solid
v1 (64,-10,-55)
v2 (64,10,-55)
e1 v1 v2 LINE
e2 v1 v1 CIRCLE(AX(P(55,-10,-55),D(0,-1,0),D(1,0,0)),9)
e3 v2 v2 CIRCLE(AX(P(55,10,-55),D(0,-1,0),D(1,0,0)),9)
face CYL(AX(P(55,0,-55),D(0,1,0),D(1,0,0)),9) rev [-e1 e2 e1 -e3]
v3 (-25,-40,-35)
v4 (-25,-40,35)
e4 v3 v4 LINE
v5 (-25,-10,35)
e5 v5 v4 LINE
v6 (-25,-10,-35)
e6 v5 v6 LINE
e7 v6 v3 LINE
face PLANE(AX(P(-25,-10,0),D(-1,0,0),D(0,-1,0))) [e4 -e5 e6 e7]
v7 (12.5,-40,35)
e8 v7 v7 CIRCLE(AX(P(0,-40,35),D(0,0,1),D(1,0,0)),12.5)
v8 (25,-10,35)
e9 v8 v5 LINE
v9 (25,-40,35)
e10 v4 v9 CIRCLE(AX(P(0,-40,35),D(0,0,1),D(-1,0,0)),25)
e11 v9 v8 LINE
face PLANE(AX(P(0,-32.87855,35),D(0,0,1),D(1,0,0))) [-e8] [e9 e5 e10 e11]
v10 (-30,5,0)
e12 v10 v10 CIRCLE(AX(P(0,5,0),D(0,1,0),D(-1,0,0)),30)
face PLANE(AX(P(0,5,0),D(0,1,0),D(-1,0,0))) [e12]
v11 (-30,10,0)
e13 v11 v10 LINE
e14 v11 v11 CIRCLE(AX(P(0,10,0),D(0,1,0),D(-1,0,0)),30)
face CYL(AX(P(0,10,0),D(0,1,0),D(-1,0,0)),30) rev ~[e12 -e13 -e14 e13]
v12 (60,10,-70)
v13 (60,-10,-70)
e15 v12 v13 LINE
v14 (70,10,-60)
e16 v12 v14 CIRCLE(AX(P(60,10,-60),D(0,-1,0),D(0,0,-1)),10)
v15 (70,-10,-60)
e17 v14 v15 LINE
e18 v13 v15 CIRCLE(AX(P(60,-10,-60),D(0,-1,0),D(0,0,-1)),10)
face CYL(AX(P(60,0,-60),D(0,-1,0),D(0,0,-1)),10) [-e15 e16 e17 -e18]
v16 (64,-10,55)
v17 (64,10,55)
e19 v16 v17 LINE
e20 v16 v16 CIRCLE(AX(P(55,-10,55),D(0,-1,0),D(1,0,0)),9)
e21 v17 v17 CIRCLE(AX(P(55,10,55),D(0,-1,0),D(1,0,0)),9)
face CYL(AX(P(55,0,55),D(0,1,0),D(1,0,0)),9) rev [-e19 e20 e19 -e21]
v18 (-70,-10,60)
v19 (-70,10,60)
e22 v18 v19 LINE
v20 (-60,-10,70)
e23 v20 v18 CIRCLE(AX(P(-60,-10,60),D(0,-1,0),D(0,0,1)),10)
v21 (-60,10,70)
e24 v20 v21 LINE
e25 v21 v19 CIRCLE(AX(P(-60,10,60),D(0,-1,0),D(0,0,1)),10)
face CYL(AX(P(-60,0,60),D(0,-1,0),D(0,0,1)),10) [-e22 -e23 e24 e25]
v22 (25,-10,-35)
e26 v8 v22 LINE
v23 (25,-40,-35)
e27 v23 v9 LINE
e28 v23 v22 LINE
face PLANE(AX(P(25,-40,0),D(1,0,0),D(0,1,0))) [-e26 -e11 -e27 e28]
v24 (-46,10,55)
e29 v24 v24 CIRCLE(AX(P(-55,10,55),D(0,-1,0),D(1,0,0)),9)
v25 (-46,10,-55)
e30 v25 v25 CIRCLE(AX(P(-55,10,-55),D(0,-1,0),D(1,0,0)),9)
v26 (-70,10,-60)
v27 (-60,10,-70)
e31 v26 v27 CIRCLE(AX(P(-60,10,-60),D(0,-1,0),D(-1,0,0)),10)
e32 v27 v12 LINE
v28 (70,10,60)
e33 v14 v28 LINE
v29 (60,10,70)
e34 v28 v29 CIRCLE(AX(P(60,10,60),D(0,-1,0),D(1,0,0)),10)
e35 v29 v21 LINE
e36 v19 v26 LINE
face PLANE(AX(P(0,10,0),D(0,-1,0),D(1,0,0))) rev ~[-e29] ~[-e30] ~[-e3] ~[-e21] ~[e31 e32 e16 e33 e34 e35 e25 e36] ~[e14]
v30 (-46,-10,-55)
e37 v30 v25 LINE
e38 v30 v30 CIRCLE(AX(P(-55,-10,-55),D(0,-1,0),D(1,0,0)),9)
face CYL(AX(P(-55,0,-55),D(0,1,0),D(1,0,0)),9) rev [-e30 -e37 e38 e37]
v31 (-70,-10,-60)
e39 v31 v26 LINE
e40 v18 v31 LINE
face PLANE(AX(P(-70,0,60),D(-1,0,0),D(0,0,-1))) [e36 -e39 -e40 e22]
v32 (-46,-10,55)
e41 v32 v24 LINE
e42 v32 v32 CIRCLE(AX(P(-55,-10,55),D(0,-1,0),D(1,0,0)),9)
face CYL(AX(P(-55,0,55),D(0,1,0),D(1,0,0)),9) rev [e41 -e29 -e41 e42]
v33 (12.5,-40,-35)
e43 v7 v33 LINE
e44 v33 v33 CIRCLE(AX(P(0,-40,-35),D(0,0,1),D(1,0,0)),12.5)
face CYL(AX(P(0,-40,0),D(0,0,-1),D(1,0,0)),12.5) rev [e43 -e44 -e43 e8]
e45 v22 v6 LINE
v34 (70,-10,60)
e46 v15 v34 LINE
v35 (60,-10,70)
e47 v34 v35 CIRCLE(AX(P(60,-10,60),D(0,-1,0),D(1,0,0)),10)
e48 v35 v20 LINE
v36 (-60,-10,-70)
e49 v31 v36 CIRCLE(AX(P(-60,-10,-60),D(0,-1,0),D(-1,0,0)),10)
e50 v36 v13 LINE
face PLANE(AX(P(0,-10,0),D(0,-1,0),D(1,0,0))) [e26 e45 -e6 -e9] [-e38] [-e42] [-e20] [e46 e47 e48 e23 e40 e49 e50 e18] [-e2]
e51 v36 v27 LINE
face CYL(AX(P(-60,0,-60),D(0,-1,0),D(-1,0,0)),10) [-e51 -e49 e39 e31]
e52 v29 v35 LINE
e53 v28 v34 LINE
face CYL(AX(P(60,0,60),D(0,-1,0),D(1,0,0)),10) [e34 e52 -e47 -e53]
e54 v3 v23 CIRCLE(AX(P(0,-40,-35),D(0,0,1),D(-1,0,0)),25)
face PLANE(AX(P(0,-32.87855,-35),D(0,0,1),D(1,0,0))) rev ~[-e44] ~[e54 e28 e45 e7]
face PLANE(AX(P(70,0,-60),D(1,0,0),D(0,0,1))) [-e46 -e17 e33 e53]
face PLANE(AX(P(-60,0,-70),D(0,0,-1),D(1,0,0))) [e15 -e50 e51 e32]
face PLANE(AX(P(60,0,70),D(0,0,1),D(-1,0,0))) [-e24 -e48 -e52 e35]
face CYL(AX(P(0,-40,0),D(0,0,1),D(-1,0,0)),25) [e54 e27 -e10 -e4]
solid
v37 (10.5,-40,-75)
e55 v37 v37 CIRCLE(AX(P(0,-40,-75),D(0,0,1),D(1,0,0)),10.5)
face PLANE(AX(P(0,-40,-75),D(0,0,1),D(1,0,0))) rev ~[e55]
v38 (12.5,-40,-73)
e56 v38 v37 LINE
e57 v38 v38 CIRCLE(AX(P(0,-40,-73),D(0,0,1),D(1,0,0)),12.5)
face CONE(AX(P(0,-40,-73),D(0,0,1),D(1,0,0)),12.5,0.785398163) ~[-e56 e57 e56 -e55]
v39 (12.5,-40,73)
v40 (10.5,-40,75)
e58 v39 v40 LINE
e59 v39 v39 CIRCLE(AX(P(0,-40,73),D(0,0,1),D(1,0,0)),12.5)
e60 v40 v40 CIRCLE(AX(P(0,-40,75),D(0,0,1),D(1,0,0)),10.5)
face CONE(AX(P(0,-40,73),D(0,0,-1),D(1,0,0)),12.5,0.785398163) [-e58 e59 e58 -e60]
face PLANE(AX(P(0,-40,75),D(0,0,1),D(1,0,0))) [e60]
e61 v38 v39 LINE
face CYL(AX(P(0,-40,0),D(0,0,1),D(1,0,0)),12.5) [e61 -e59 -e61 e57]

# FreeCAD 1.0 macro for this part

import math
import FreeCAD as App
import Part
import Sketcher
from FreeCAD import Vector


def edges_at(feature, points):
    """Names of the edges that pass closest to the given points."""
    edges = feature.Shape.Edges
    near = lambda p: min(range(len(edges)), key=lambda i: edges[i].distToShape(Part.Vertex(*p))[0])
    return sorted({f"Edge{near(p) + 1}" for p in points})

doc = App.newDocument("Part")
body = doc.addObject("PartDesign::Body", "Body")

sketch1 = body.newObject("Sketcher::SketchObject", "Sketch")
sketch1.AttachmentSupport = (doc.getObject("XZ_Plane"), [""])
sketch1.MapMode = "FlatFace"
sketch1.addGeometry([
    Part.LineSegment(Vector(-60, -70, 0), Vector(60, -70, 0)),
    Part.ArcOfCircle(Part.Circle(Vector(60, -60, 0), Vector(0, 0, 1), 10), math.radians(-90), math.radians(0)),
    Part.LineSegment(Vector(70, -60, 0), Vector(70, 60, 0)),
    Part.ArcOfCircle(Part.Circle(Vector(60, 60, 0), Vector(0, 0, 1), 10), math.radians(0), math.radians(90)),
    Part.LineSegment(Vector(60, 70, 0), Vector(-60, 70, 0)),
    Part.ArcOfCircle(Part.Circle(Vector(-60, 60, 0), Vector(0, 0, 1), 10), math.radians(90), math.radians(180)),
    Part.LineSegment(Vector(-70, 60, 0), Vector(-70, -60, 0)),
    Part.ArcOfCircle(Part.Circle(Vector(-60, -60, 0), Vector(0, 0, 1), 10), math.radians(180), math.radians(270)),
    Part.Circle(Vector(-55, -55, 0), Vector(0, 0, 1), 9),
    Part.Circle(Vector(55, -55, 0), Vector(0, 0, 1), 9),
    Part.Circle(Vector(-55, 55, 0), Vector(0, 0, 1), 9),
    Part.Circle(Vector(55, 55, 0), Vector(0, 0, 1), 9),
], False)
sketch1.addConstraint([
    Sketcher.Constraint("Tangent", 0, 2, 1, 1),
    Sketcher.Constraint("Tangent", 1, 2, 2, 1),
    Sketcher.Constraint("Tangent", 2, 2, 3, 1),
    Sketcher.Constraint("Tangent", 3, 2, 4, 1),
    Sketcher.Constraint("Tangent", 4, 2, 5, 1),
    Sketcher.Constraint("Tangent", 5, 2, 6, 1),
    Sketcher.Constraint("Tangent", 6, 2, 7, 1),
    Sketcher.Constraint("Tangent", 7, 2, 0, 1),
    Sketcher.Constraint("Horizontal", 0),
    Sketcher.Constraint("Vertical", 2),
    Sketcher.Constraint("Horizontal", 4),
    Sketcher.Constraint("Vertical", 6),
    Sketcher.Constraint("Equal", 1, 3),
    Sketcher.Constraint("Equal", 3, 5),
    Sketcher.Constraint("Equal", 5, 7),
    Sketcher.Constraint("Equal", 8, 9),
    Sketcher.Constraint("Equal", 9, 10),
    Sketcher.Constraint("Equal", 10, 11),
    Sketcher.Constraint("Symmetric", 1, 3, 5, 3, -1, 1),
    Sketcher.Constraint("Symmetric", 9, 3, 10, 3, -1, 1),
    Sketcher.Constraint("Symmetric", 8, 3, 11, 3, -1, 1),
    Sketcher.Constraint("Symmetric", 8, 3, 9, 3, -2),
    Sketcher.Constraint("Equal", 4, 2),
    Sketcher.Constraint("Diameter", 8, 18.0),
    Sketcher.Constraint("Radius", 1, 10.0),
    Sketcher.Constraint("DistanceX", 0, 1, 0, 2, 120.0),
    Sketcher.Constraint("DistanceX", 8, 3, -1, 1, 55.0),
    Sketcher.Constraint("DistanceY", 8, 3, -1, 1, 55.0),
])
pad1 = body.newObject("PartDesign::Pad", "Pad")
pad1.Profile = sketch1
pad1.Length = 20
pad1.Midplane = True

sketch2 = body.newObject("Sketcher::SketchObject", "Sketch001")
sketch2.AttachmentSupport = (doc.getObject("XY_Plane"), [""])
sketch2.MapMode = "FlatFace"
sketch2.addGeometry([
    Part.LineSegment(Vector(-25, -10, 0), Vector(-25, -40, 0)),
    Part.ArcOfCircle(Part.Circle(Vector(0, -40, 0), Vector(0, 0, 1), 25), math.radians(180), math.radians(360)),
    Part.LineSegment(Vector(25, -40, 0), Vector(25, -10, 0)),
    Part.LineSegment(Vector(25, -10, 0), Vector(-25, -10, 0)),
    Part.Circle(Vector(0, -40, 0), Vector(0, 0, 1), 12.5),
], False)
sketch2.addConstraint([
    Sketcher.Constraint("Tangent", 0, 2, 1, 1),
    Sketcher.Constraint("Tangent", 1, 2, 2, 1),
    Sketcher.Constraint("Coincident", 2, 2, 3, 1),
    Sketcher.Constraint("Coincident", 3, 2, 0, 1),
    Sketcher.Constraint("Vertical", 0),
    Sketcher.Constraint("Vertical", 2),
    Sketcher.Constraint("Horizontal", 3),
    Sketcher.Constraint("Coincident", 4, 3, 1, 3),
    Sketcher.Constraint("PointOnObject", 1, 3, -2),
    Sketcher.Constraint("Diameter", 4, 25.0),
    Sketcher.Constraint("Radius", 1, 25.0),
    Sketcher.Constraint("DistanceY", 0, 2, 0, 1, 30.0),
    Sketcher.Constraint("DistanceY", 1, 3, -1, 1, 40.0),
])
pad2 = body.newObject("PartDesign::Pad", "Pad001")
pad2.Profile = sketch2
pad2.Length = 70
pad2.Midplane = True

sketch3 = body.newObject("Sketcher::SketchObject", "Sketch002")
sketch3.AttachmentSupport = (doc.getObject("XZ_Plane"), [""])
sketch3.MapMode = "FlatFace"
sketch3.AttachmentOffset = App.Placement(Vector(0, 0, -10), App.Rotation())
sketch3.addGeometry(Part.Circle(Vector(0, 0, 0), Vector(0, 0, 1), 30), False)
sketch3.addConstraint([
    Sketcher.Constraint("Coincident", 0, 3, -1, 1),
    Sketcher.Constraint("Diameter", 0, 60.0),
])
pocket1 = body.newObject("PartDesign::Pocket", "Pocket")
pocket1.Profile = sketch3
pocket1.Length = 5
pocket1.Reversed = True
body2 = doc.addObject("PartDesign::Body", "Body001")

sketch4 = body2.newObject("Sketcher::SketchObject", "Sketch003")
sketch4.AttachmentSupport = (doc.getObject("XY_Plane001"), [""])
sketch4.MapMode = "FlatFace"
sketch4.addGeometry(Part.Circle(Vector(0, -40, 0), Vector(0, 0, 1), 12.5), False)
sketch4.addConstraint([
    Sketcher.Constraint("PointOnObject", 0, 3, -2),
    Sketcher.Constraint("Diameter", 0, 25.0),
    Sketcher.Constraint("DistanceY", 0, 3, -1, 1, 40.0),
])
pad3 = body2.newObject("PartDesign::Pad", "Pad002")
pad3.Profile = sketch4
pad3.Length = 150
pad3.Midplane = True
doc.recompute()

chamfer = body2.newObject("PartDesign::Chamfer", "Chamfer")
chamfer.Base = (pad3, edges_at(pad3, [(-12.5, -40, 75), (-12.5, -40, -75)]))
chamfer.Size = 2

doc.recompute()
